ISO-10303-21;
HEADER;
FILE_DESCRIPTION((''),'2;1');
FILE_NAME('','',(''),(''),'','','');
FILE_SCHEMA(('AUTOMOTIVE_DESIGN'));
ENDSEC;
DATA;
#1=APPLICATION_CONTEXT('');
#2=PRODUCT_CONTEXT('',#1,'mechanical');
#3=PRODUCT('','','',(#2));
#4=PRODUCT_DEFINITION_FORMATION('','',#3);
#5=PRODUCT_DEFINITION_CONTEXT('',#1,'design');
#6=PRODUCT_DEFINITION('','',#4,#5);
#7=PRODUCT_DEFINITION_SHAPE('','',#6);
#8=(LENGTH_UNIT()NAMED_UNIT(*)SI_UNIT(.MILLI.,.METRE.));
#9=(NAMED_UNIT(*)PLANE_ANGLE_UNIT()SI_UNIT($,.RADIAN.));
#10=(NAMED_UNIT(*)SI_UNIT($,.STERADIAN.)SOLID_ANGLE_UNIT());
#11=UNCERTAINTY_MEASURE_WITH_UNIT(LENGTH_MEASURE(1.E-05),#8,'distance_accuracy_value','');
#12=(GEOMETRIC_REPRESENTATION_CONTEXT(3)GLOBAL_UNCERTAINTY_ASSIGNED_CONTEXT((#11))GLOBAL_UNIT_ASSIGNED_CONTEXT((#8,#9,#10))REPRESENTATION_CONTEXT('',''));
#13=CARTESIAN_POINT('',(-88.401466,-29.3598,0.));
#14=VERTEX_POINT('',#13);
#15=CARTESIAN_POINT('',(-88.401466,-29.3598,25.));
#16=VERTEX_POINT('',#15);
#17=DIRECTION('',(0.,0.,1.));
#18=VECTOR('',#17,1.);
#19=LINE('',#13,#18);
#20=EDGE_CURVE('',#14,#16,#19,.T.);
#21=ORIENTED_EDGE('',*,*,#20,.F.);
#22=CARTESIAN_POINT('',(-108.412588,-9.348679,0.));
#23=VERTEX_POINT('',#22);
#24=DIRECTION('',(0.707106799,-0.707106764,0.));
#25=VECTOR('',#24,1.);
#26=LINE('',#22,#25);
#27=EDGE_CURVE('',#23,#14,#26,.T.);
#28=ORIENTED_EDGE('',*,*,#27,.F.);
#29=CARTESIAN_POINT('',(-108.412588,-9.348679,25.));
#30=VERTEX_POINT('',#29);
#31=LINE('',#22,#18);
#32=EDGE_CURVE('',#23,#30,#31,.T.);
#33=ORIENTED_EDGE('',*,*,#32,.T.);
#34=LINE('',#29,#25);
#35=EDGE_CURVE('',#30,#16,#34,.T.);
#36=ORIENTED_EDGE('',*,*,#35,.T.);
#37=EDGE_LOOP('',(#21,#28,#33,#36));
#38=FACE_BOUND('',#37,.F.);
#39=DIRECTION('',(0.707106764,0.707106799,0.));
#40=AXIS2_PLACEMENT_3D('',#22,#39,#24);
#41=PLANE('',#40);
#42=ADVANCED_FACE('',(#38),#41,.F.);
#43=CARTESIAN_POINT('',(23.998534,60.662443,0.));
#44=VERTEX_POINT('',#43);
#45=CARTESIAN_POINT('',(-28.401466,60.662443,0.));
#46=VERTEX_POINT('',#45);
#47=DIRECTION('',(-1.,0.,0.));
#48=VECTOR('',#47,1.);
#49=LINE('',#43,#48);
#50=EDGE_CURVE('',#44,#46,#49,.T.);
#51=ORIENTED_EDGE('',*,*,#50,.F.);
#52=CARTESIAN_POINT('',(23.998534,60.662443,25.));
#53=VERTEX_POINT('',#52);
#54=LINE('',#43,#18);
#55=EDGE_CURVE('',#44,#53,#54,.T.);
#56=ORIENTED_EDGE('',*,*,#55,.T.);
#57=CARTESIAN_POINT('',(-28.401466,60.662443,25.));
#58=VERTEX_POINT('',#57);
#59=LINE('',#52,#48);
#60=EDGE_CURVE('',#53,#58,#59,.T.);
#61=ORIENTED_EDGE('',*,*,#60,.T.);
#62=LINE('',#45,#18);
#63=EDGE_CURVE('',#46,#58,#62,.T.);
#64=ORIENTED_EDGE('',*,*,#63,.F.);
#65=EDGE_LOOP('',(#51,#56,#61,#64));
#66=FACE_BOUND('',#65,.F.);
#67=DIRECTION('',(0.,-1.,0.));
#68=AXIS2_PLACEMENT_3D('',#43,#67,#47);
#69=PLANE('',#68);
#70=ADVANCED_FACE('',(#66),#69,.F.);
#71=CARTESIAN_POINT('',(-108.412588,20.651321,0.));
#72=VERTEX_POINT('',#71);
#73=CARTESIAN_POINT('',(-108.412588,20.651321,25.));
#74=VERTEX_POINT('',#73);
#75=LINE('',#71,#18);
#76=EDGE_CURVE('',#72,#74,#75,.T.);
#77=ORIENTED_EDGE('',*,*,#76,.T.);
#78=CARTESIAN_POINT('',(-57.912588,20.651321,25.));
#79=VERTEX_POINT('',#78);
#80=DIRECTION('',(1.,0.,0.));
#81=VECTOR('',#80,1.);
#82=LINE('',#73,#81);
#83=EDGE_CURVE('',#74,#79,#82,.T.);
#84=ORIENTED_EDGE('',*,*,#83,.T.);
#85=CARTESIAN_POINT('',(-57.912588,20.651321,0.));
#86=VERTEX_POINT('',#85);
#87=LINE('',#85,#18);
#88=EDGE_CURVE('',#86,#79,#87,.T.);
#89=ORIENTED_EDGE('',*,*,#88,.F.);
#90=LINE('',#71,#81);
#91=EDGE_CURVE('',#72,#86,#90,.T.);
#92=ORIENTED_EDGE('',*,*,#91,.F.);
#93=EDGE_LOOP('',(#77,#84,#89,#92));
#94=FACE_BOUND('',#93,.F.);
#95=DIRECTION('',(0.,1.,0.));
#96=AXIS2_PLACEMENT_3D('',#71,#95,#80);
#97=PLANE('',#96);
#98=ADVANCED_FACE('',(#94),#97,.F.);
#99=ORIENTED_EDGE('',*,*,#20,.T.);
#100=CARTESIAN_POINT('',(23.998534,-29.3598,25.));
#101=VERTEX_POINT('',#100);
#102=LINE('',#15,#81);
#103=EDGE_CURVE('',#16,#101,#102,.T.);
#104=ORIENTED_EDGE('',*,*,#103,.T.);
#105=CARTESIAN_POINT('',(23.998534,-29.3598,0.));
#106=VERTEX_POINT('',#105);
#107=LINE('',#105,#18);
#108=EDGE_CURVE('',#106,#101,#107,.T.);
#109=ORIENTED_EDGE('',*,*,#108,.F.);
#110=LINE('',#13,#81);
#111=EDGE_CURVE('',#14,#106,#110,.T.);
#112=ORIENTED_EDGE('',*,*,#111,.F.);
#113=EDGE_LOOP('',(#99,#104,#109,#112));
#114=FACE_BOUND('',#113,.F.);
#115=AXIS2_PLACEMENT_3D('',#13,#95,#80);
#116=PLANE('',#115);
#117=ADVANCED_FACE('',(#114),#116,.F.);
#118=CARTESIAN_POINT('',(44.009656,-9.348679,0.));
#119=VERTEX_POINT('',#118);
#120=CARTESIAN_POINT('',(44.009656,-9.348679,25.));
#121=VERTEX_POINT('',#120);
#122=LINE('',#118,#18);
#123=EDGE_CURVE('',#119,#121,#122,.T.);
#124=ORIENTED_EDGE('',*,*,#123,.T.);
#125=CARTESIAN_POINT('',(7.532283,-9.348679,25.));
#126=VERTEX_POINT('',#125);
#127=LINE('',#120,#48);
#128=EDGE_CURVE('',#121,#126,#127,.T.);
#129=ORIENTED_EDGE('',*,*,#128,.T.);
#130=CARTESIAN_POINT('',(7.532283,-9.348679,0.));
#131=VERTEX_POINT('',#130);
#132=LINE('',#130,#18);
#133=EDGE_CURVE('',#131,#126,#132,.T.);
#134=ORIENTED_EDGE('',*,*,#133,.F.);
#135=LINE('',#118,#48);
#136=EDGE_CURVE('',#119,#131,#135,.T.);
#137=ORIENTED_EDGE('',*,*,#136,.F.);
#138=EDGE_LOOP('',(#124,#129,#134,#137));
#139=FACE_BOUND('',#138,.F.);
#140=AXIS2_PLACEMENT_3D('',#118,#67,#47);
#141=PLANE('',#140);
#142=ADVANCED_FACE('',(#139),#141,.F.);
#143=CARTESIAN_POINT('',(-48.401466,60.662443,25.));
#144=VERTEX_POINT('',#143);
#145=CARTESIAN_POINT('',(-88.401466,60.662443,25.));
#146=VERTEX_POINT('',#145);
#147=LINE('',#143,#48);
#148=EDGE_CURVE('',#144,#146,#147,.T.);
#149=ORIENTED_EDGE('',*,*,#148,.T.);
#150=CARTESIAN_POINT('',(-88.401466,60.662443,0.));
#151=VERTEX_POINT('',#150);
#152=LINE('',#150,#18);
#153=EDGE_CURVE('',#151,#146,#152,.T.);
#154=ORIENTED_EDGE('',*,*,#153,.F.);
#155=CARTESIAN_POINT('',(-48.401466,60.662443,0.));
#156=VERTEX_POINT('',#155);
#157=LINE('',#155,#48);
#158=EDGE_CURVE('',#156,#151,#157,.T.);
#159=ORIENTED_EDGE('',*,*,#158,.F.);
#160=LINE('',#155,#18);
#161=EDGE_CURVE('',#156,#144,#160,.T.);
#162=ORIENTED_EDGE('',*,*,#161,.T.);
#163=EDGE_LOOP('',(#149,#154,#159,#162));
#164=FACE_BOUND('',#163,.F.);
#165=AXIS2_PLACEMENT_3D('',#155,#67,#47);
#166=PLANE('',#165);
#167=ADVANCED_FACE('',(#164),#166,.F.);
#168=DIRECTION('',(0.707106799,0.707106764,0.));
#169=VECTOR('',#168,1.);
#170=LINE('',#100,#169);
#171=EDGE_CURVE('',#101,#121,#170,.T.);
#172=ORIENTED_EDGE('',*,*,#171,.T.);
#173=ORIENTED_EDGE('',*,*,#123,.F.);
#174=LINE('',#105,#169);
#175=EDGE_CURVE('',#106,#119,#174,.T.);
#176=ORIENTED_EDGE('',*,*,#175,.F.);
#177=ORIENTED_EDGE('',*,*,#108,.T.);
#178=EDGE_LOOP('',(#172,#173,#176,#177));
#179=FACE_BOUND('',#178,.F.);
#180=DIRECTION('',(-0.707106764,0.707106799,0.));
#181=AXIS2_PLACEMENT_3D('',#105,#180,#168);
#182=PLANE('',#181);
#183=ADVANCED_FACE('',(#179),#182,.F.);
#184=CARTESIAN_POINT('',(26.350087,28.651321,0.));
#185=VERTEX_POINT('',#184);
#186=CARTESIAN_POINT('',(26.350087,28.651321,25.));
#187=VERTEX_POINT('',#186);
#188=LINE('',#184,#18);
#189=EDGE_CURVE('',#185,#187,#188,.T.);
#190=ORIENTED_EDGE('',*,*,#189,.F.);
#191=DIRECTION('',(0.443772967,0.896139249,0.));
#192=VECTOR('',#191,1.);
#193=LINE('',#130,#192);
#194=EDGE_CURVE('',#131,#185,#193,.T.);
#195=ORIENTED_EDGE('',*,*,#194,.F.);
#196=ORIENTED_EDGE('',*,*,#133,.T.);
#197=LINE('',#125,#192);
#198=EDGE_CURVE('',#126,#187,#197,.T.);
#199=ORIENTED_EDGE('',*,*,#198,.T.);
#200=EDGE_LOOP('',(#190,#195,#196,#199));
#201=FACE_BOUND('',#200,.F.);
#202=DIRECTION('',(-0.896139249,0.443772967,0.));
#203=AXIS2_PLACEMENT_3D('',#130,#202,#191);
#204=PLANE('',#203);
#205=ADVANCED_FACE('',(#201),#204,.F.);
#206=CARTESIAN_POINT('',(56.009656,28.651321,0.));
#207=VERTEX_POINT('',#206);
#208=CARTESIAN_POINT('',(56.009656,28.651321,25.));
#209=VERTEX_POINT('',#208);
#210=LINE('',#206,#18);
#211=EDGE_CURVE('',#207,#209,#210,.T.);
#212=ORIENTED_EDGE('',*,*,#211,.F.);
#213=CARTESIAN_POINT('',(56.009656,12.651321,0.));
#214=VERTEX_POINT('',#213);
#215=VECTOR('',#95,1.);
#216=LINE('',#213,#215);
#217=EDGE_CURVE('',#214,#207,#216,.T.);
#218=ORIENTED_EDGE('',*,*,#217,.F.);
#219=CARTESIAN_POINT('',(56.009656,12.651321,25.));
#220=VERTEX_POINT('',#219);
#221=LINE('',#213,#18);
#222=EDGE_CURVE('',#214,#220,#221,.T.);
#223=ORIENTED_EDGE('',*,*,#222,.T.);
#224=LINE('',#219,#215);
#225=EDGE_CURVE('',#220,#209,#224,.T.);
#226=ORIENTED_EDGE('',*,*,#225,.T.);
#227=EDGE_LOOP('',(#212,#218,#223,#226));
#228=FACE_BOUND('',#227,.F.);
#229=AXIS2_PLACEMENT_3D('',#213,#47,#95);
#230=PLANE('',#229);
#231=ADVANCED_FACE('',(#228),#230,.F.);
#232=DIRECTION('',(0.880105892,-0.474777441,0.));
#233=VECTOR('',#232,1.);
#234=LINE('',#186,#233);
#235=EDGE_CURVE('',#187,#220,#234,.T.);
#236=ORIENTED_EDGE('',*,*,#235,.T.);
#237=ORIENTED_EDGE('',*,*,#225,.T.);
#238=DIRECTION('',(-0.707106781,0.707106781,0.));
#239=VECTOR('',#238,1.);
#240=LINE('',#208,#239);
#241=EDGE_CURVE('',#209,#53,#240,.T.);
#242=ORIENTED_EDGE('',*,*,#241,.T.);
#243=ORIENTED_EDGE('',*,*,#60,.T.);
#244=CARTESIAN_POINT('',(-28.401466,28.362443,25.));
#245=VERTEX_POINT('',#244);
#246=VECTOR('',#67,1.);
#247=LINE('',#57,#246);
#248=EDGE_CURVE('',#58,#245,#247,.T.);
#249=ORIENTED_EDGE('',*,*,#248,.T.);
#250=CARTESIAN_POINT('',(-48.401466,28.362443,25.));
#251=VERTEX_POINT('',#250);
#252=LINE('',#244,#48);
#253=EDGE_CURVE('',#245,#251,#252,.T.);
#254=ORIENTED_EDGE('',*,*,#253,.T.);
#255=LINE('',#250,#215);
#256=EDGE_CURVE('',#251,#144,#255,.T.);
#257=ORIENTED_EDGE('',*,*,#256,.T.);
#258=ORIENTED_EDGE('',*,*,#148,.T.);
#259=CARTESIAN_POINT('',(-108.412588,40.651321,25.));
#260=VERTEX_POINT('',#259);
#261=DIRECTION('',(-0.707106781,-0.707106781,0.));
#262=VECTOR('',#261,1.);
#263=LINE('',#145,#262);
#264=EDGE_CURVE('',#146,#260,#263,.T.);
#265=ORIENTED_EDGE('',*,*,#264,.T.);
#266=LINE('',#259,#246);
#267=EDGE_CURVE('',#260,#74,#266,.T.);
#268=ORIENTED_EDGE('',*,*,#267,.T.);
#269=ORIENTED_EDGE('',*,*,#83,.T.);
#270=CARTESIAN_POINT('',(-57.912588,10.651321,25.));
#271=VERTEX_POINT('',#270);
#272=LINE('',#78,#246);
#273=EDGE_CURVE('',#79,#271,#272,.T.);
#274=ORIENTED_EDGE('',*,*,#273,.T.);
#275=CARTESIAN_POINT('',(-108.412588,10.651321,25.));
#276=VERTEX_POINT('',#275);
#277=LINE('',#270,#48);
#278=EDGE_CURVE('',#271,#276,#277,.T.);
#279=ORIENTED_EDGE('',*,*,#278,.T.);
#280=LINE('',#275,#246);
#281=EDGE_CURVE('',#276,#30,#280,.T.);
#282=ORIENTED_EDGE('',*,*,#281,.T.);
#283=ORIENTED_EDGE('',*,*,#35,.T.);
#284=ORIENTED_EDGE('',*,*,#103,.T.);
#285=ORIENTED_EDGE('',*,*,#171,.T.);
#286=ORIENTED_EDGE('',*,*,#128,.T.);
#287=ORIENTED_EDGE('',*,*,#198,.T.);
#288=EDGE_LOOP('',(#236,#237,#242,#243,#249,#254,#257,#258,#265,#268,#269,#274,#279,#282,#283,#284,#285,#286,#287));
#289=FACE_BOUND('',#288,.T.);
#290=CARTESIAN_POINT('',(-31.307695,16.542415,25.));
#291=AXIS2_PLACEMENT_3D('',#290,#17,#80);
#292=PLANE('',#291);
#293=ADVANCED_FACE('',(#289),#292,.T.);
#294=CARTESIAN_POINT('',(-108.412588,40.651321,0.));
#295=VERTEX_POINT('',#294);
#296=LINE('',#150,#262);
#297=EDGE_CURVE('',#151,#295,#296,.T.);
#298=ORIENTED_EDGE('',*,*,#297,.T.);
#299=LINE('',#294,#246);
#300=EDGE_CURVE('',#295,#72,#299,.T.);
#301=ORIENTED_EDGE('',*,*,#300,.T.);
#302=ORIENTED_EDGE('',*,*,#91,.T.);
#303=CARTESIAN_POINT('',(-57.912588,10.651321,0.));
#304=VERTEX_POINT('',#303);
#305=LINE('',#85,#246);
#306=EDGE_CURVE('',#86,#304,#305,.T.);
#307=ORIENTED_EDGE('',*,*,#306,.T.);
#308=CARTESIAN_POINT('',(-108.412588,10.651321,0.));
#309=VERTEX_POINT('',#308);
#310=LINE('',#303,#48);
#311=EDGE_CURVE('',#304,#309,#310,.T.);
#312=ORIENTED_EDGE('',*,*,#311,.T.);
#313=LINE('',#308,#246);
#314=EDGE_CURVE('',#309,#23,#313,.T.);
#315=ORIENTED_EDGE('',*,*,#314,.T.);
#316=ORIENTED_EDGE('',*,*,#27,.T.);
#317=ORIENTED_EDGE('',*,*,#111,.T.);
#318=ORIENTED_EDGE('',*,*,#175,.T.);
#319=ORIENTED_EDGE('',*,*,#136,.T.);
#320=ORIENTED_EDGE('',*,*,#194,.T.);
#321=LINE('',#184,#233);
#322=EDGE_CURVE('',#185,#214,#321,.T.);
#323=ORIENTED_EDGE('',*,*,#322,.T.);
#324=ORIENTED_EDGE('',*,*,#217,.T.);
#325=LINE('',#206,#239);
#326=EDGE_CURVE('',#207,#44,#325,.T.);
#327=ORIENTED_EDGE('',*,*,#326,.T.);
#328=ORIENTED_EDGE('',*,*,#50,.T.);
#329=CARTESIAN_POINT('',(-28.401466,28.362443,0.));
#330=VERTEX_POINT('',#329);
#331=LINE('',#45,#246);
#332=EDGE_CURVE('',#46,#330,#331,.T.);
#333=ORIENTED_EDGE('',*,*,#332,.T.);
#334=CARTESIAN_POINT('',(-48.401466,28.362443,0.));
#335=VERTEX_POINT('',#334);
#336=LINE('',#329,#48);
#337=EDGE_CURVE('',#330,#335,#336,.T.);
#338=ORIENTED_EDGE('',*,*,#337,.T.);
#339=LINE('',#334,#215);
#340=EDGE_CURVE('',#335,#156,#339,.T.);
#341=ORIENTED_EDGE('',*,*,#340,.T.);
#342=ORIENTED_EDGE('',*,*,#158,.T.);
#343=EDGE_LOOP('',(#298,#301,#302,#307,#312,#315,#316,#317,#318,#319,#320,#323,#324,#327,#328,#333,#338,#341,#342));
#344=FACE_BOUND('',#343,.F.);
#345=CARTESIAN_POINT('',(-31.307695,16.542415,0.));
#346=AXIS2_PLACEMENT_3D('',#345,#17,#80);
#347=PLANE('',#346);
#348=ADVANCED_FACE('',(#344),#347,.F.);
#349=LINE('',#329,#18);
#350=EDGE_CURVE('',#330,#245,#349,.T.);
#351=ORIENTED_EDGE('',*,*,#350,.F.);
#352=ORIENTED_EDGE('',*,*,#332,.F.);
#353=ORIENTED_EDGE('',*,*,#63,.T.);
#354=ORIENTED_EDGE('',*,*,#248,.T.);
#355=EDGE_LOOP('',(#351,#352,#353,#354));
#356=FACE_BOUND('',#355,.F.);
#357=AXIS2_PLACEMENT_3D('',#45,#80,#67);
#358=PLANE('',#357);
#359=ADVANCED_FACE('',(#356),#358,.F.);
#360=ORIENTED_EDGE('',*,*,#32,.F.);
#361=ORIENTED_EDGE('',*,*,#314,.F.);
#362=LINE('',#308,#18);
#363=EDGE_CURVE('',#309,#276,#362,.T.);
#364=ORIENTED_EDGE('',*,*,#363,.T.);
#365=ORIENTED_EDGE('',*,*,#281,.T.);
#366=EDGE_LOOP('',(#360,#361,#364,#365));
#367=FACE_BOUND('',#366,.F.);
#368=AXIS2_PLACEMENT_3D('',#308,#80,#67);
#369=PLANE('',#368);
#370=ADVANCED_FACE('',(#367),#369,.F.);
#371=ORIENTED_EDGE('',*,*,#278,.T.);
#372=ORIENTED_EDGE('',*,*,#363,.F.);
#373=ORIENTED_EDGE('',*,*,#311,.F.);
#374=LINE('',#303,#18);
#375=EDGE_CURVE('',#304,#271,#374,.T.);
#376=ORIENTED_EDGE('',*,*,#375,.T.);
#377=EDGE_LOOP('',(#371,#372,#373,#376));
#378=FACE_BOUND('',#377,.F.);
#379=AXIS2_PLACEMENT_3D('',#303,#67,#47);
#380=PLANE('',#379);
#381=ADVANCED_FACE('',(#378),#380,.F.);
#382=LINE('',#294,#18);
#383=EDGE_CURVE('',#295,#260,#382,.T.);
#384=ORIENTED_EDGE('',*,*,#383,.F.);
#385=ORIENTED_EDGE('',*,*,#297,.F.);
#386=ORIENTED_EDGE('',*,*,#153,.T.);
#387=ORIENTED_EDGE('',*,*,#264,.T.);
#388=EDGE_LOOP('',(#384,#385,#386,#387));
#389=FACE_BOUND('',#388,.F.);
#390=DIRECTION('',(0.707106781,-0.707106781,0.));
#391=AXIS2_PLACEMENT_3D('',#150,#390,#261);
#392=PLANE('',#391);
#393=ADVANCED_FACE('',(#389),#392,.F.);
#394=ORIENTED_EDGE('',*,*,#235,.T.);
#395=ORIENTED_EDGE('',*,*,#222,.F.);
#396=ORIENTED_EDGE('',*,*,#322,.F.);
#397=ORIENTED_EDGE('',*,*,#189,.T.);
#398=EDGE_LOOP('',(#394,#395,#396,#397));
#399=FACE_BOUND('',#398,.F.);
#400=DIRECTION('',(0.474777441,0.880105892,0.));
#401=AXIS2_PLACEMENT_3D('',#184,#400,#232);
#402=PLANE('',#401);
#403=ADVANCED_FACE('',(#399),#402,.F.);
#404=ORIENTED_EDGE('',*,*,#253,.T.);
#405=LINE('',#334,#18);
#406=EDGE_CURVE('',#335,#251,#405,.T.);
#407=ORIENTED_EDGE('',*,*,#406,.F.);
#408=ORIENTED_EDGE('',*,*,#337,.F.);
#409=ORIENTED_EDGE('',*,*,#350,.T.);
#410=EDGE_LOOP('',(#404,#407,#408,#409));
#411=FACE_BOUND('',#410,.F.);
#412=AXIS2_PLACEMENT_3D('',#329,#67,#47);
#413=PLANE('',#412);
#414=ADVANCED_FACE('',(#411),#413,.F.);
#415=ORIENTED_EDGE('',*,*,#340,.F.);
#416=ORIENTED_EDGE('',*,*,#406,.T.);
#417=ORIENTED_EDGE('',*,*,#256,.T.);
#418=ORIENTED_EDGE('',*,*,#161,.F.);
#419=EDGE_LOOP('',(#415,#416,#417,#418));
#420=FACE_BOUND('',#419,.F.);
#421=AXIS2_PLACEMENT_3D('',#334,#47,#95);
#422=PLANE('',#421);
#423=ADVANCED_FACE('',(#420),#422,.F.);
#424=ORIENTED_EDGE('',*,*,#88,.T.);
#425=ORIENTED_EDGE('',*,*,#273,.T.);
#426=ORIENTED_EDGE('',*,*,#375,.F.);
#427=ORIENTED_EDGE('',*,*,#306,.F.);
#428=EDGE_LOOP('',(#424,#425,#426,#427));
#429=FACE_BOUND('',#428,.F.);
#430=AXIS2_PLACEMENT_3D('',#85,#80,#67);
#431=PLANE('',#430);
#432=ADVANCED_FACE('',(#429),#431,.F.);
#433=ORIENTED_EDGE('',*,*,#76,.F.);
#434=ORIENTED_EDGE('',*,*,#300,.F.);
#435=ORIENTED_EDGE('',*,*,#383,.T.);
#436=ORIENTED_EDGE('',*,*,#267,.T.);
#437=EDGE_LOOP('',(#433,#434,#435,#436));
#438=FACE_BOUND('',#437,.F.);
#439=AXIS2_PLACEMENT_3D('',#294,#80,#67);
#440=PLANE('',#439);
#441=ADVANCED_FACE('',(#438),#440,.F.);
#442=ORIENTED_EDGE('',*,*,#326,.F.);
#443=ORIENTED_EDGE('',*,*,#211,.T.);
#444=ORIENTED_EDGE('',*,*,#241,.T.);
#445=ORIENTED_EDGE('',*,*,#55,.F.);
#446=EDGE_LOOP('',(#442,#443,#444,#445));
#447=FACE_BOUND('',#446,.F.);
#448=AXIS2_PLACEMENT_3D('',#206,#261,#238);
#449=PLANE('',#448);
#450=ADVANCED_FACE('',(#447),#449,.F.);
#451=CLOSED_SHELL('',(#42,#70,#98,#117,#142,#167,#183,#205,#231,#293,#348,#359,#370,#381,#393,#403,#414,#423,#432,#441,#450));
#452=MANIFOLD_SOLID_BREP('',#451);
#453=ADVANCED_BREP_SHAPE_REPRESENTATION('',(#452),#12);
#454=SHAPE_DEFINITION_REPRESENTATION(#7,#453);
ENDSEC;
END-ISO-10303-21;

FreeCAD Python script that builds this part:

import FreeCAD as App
import Part
import Sketcher
Q = App.Units.Quantity

doc = App.newDocument("Part")
params = doc.addObject("Spreadsheet::Sheet", "Params")
for row, (alias, value) in enumerate([
    ("sketch1_width", "20 mm"),
    ("sketch1_width2", "40 mm"),
    ("sketch1_height", "16 mm"),
    ("sketch1_height2", "10 mm"),
    ("sketch1_width3", "112.4 mm"),
    ("pad1_length", "25 mm"),
], start=1):
    params.set(f"A{row}", alias)
    params.set(f"B{row}", "=" + value)
    params.setAlias(f"B{row}", alias)

body = doc.addObject("PartDesign::Body", "Body")

# Sketch on XY plane
sketch1 = body.newObject("Sketcher::SketchObject", "Sketch")
sketch1.AttachmentSupport = (doc.getObject("XY_Plane"), [""])
sketch1.MapMode = "FlatFace"
sketch1.addGeometry([
    Part.LineSegment(App.Vector(-108, -9, 0), App.Vector(-88, -29, 0)),  # 0
    Part.LineSegment(App.Vector(-88, -29, 0), App.Vector(24, -29, 0)),  # 1
    Part.LineSegment(App.Vector(24, -29, 0), App.Vector(44, -9, 0)),  # 2
    Part.LineSegment(App.Vector(44, -9, 0), App.Vector(8, -9, 0)),  # 3
    Part.LineSegment(App.Vector(8, -9, 0), App.Vector(26, 29, 0)),  # 4
    Part.LineSegment(App.Vector(26, 29, 0), App.Vector(56, 13, 0)),  # 5
    Part.LineSegment(App.Vector(56, 13, 0), App.Vector(56, 29, 0)),  # 6
    Part.LineSegment(App.Vector(56, 29, 0), App.Vector(24, 61, 0)),  # 7
    Part.LineSegment(App.Vector(24, 61, 0), App.Vector(-28, 61, 0)),  # 8
    Part.LineSegment(App.Vector(-28, 61, 0), App.Vector(-28, 28, 0)),  # 9
    Part.LineSegment(App.Vector(-28, 28, 0), App.Vector(-48, 28, 0)),  # 10
    Part.LineSegment(App.Vector(-48, 28, 0), App.Vector(-48, 61, 0)),  # 11
    Part.LineSegment(App.Vector(-48, 61, 0), App.Vector(-88, 61, 0)),  # 12
    Part.LineSegment(App.Vector(-88, 61, 0), App.Vector(-108, 41, 0)),  # 13
    Part.LineSegment(App.Vector(-108, 41, 0), App.Vector(-108, 21, 0)),  # 14
    Part.LineSegment(App.Vector(-108, 21, 0), App.Vector(-58, 21, 0)),  # 15
    Part.LineSegment(App.Vector(-58, 21, 0), App.Vector(-58, 11, 0)),  # 16
    Part.LineSegment(App.Vector(-58, 11, 0), App.Vector(-108, 11, 0)),  # 17
    Part.LineSegment(App.Vector(-108, 11, 0), App.Vector(-108, -9, 0)),  # 18
], False)
sketch1.addConstraint([
    Sketcher.Constraint("Coincident", 0, 2, 1, 1),
    Sketcher.Constraint("Coincident", 1, 2, 2, 1),
    Sketcher.Constraint("Coincident", 2, 2, 3, 1),
    Sketcher.Constraint("Coincident", 3, 2, 4, 1),
    Sketcher.Constraint("Coincident", 4, 2, 5, 1),
    Sketcher.Constraint("Coincident", 5, 2, 6, 1),
    Sketcher.Constraint("Coincident", 6, 2, 7, 1),
    Sketcher.Constraint("Coincident", 7, 2, 8, 1),
    Sketcher.Constraint("Coincident", 8, 2, 9, 1),
    Sketcher.Constraint("Coincident", 9, 2, 10, 1),
    Sketcher.Constraint("Coincident", 10, 2, 11, 1),
    Sketcher.Constraint("Coincident", 11, 2, 12, 1),
    Sketcher.Constraint("Coincident", 12, 2, 13, 1),
    Sketcher.Constraint("Coincident", 13, 2, 14, 1),
    Sketcher.Constraint("Coincident", 14, 2, 15, 1),
    Sketcher.Constraint("Coincident", 15, 2, 16, 1),
    Sketcher.Constraint("Coincident", 16, 2, 17, 1),
    Sketcher.Constraint("Coincident", 17, 2, 18, 1),
    Sketcher.Constraint("Coincident", 18, 2, 0, 1),
    Sketcher.Constraint("Horizontal", 1),
    Sketcher.Constraint("Horizontal", 3),
    Sketcher.Constraint("Vertical", 6),
    Sketcher.Constraint("Horizontal", 8),
    Sketcher.Constraint("Vertical", 9),
    Sketcher.Constraint("Horizontal", 10),
    Sketcher.Constraint("Vertical", 11),
    Sketcher.Constraint("Horizontal", 12),
    Sketcher.Constraint("Vertical", 14),
    Sketcher.Constraint("Horizontal", 15),
    Sketcher.Constraint("Vertical", 16),
    Sketcher.Constraint("Horizontal", 17),
    Sketcher.Constraint("Vertical", 18),
    Sketcher.Constraint("Perpendicular", 0, 2),
    Sketcher.Constraint("Perpendicular", 2, 7),
    Sketcher.Constraint("Perpendicular", 7, 13),
    Sketcher.Constraint("Horizontal", 4, 2, 6, 2),
    Sketcher.Constraint("Horizontal", 8, 2, 11, 2),
    Sketcher.Constraint("Horizontal", 3, 2, 18, 2),
    Sketcher.Constraint("Vertical", 1, 2, 7, 2),
    Sketcher.Constraint("Vertical", 0, 2, 12, 2),
    Sketcher.Constraint("Vertical", 14, 2, 17, 2),
    Sketcher.Constraint("Equal", 10, 14),
    Sketcher.Constraint("Equal", 14, 18),
    Sketcher.Constraint("Equal", 0, 2),
    Sketcher.Constraint("DistanceX", 10, 2, 10, 1, Q("20 mm")),
    Sketcher.Constraint("DistanceX", 12, 2, 12, 1, Q("40 mm")),
    Sketcher.Constraint("DistanceY", 6, 1, 6, 2, Q("16 mm")),
    Sketcher.Constraint("DistanceY", 16, 2, 16, 1, Q("10 mm")),
    Sketcher.Constraint("DistanceX", 1, 1, 1, 2, Q("112.4 mm")),
    Sketcher.Constraint("DistanceX", 15, 1, 15, 2, Q("50.5 mm")),
    Sketcher.Constraint("DistanceY", 9, 2, 9, 1, Q("32.3 mm")),
    Sketcher.Constraint("DistanceY", 2, 2, 4, 2, Q("38 mm")),
    Sketcher.Constraint("Distance", 0, Q("28.299999 mm")),
    Sketcher.Constraint("Distance", 5, Q("33.7 mm")),
    Sketcher.Constraint("DistanceY", 0, 2, -1, 1, Q("29.3598 mm")),
    Sketcher.Constraint("DistanceX", 3, 2, 3, 1, Q("36.477373 mm")),
    Sketcher.Constraint("DistanceX", 13, 2, -1, 1, Q("108.412588 mm")),
])
sketch1.setExpression("Constraints[44]", "Params.sketch1_width")
sketch1.setExpression("Constraints[45]", "Params.sketch1_width2")
sketch1.setExpression("Constraints[46]", "Params.sketch1_height")
sketch1.setExpression("Constraints[47]", "Params.sketch1_height2")
sketch1.setExpression("Constraints[48]", "Params.sketch1_width3")
pad1 = body.newObject("PartDesign::Pad", "Pad")
pad1.Profile = sketch1
pad1.setExpression("Length", "Params.pad1_length")

doc.recompute()
